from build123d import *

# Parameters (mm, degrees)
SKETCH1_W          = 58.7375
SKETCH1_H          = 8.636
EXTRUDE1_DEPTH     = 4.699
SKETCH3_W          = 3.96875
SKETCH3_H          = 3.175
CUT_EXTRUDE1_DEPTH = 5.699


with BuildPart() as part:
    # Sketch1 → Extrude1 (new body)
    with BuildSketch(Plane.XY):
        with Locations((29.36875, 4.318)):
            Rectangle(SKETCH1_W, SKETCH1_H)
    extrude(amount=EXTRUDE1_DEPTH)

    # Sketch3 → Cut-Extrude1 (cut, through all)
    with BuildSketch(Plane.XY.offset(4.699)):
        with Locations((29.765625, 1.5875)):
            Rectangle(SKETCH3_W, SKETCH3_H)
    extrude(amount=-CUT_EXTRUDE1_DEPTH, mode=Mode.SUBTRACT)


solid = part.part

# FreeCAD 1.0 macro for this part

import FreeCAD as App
import Part
import Sketcher
Q = App.Units.Quantity


def add_polygon(sketch, points):
    """Adds a closed chain of lines whose ends are joined by coincident constraints."""
    first, n = sketch.GeometryCount, len(points)
    for a, b in zip(points, points[1:] + points[:1]):
        sketch.addGeometry(Part.LineSegment(App.Vector(*a, 0), App.Vector(*b, 0)), False)
    for i in range(n):
        sketch.addConstraint(Sketcher.Constraint("Coincident", first + i, 2, first + (i + 1) % n, 1))

doc = App.newDocument("Part")
body = doc.addObject("PartDesign::Body", "Body")

# Sketch on XY plane
sketch1 = body.newObject("Sketcher::SketchObject", "Sketch")
sketch1.AttachmentSupport = (doc.getObject("XY_Plane"), [""])
sketch1.MapMode = "FlatFace"
add_polygon(sketch1, [(0, 9), (0, 0), (59, 0), (59, 9)])  # lines 0-3
sketch1.addConstraint([
    Sketcher.Constraint("Vertical", 0),
    Sketcher.Constraint("Horizontal", 1),
    Sketcher.Constraint("Vertical", 2),
    Sketcher.Constraint("Horizontal", 3),
    Sketcher.Constraint("Coincident", 0, 2, -1, 1),
    Sketcher.Constraint("DistanceY", 0, 2, 0, 1, Q("0.34 in")),
    Sketcher.Constraint("DistanceX", 1, 1, 1, 2, Q("2.3125 in")),
])
pad1 = body.newObject("PartDesign::Pad", "Pad")
pad1.Profile = sketch1
pad1.Length = Q("0.185 in")

# Sketch on XY plane
sketch2 = body.newObject("Sketcher::SketchObject", "Sketch001")
sketch2.AttachmentSupport = (doc.getObject("XY_Plane"), [""])
sketch2.MapMode = "FlatFace"
sketch2.AttachmentOffset = App.Placement(App.Vector(0, 0, 0.185 * 25.4), App.Rotation())
add_polygon(sketch2, [(27.8, 3.2), (27.8, 0), (31.8, 0), (31.8, 3.2)])  # lines 0-3
sketch2.addConstraint([
    Sketcher.Constraint("Vertical", 0),
    Sketcher.Constraint("Horizontal", 1),
    Sketcher.Constraint("Vertical", 2),
    Sketcher.Constraint("Horizontal", 3),
    Sketcher.Constraint("PointOnObject", 0, 2, -1),
    Sketcher.Constraint("DistanceX", 1, 1, 1, 2, Q("0.15625 in")),
    Sketcher.Constraint("DistanceY", 0, 2, 0, 1, Q("0.125 in")),
    Sketcher.Constraint("DistanceX", -1, 1, 1, 2, Q("1.25 in")),
])
pocket1 = body.newObject("PartDesign::Pocket", "Pocket")
pocket1.Profile = sketch2
pocket1.Type = "ThroughAll"

doc.recompute()
